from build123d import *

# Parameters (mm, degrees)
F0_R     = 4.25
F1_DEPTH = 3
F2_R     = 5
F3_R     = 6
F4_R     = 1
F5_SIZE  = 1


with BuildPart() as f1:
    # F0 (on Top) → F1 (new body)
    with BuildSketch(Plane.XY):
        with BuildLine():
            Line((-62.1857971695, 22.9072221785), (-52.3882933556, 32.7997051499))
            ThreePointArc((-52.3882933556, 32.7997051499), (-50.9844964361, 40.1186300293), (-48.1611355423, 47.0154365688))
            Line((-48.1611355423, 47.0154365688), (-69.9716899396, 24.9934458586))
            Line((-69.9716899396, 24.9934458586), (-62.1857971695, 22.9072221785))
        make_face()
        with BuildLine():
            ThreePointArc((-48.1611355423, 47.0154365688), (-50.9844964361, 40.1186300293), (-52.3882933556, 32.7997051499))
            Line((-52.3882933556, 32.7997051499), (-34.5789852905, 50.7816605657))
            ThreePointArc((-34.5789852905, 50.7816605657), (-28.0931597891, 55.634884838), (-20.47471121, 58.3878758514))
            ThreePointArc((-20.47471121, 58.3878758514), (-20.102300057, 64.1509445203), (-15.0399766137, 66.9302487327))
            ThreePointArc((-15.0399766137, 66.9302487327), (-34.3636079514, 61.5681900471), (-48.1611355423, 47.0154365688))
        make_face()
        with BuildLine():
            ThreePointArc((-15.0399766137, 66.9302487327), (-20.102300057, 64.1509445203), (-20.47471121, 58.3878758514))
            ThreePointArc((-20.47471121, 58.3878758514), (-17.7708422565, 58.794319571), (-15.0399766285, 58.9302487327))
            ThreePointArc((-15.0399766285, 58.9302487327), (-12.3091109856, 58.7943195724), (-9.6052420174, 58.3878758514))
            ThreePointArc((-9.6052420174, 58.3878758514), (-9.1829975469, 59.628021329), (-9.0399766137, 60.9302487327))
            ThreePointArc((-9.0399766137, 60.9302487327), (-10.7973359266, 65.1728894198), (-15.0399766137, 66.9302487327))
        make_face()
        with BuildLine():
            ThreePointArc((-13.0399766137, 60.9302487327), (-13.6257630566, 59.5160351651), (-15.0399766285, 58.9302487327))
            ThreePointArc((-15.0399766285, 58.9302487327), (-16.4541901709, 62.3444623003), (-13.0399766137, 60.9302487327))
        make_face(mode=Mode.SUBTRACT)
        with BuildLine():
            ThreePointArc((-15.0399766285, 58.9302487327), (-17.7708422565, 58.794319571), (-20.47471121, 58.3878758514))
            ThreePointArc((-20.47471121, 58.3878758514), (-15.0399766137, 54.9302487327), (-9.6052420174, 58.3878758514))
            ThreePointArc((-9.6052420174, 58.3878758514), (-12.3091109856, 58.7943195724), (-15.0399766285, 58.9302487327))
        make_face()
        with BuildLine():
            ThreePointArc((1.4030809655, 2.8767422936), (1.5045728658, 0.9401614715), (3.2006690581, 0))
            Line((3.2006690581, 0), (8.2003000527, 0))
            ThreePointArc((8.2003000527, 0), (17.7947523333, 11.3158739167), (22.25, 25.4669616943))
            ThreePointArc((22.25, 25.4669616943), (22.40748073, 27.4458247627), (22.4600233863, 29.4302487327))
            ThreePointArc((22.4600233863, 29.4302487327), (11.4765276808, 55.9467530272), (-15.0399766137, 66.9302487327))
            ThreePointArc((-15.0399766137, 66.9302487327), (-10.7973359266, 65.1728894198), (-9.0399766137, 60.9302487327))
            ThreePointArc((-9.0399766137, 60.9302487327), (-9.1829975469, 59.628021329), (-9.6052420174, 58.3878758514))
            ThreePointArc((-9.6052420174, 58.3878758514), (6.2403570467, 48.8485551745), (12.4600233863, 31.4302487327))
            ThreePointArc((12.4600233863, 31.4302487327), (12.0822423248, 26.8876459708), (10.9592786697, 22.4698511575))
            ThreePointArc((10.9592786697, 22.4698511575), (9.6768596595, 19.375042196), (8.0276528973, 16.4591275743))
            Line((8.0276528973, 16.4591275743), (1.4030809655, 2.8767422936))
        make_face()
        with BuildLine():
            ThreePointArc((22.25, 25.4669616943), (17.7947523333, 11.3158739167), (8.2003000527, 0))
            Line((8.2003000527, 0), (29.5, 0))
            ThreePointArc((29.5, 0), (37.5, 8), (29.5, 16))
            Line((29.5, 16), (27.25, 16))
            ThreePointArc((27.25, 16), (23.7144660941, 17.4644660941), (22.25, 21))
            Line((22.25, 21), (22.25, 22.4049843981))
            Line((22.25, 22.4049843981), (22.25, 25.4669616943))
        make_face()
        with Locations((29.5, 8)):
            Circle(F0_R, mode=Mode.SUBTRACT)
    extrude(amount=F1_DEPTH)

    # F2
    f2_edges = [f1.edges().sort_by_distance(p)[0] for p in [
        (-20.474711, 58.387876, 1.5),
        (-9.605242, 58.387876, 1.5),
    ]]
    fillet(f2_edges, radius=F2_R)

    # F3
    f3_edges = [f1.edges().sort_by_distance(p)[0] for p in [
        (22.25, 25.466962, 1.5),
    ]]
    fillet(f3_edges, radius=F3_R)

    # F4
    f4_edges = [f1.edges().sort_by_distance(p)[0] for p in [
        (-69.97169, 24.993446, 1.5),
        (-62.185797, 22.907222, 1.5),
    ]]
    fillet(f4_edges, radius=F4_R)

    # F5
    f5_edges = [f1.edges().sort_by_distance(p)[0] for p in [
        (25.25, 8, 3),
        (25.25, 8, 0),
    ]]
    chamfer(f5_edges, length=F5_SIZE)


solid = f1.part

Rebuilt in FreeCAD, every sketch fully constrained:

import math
import FreeCAD as App
import Part
import Sketcher
from FreeCAD import Vector
Q = App.Units.Quantity


def edges_at(feature, points):
    """Names of the edges that pass closest to the given points."""
    edges = feature.Shape.Edges
    near = lambda p: min(range(len(edges)), key=lambda i: edges[i].distToShape(Part.Vertex(*p))[0])
    return sorted({f"Edge{near(p) + 1}" for p in points})

doc = App.newDocument("Part")
params = doc.addObject("Spreadsheet::Sheet", "Params")
for row, (alias, value) in enumerate([
    ("sketch1_radius", "6 mm"),
    ("sketch1_radius2", "2 mm"),
    ("sketch1_radius3", "8 mm"),
    ("sketch1_radius4", "5 mm"),
    ("sketch1_diameter", "8.5 mm"),
    ("pad1_length", "3 mm"),
    ("fillet_radius", "5 mm"),
    ("fillet2_radius", "6 mm"),
    ("fillet3_radius", "1 mm"),
    ("chamfer_size", "1 mm"),
], start=1):
    params.set(f"A{row}", alias)
    params.set(f"B{row}", "=" + value)
    params.setAlias(f"B{row}", alias)

body = doc.addObject("PartDesign::Body", "Body")

sketch1 = body.newObject("Sketcher::SketchObject", "Sketch")
sketch1.AttachmentSupport = (doc.getObject("XY_Plane"), [""])
sketch1.MapMode = "FlatFace"
sketch1.addGeometry(Part.LineSegment(Vector(-48.161136, 47.015437, 0), Vector(-69.97169, 24.993446, 0)), False)
sketch1.addGeometry(Part.LineSegment(Vector(-69.97169, 24.993446, 0), Vector(-62.185797, 22.907222, 0)), False)
sketch1.addGeometry(Part.LineSegment(Vector(-62.185797, 22.907222, 0), Vector(-52.388293, 32.799705, 0)), False)
sketch1.addGeometry(Part.LineSegment(Vector(-52.388293, 32.799705, 0), Vector(-34.578985, 50.781661, 0)), False)
sketch1.addGeometry(Part.ArcOfCircle(Part.Circle(Vector(-15.039977, 31.430249, 0), Vector(0, 0, 1), 27.5), math.radians(101.39821), math.radians(135.276377)), False)
sketch1.addGeometry(Part.ArcOfCircle(Part.Circle(Vector(-15.039977, 60.930249, 0), Vector(0, 0, 1), 6), math.radians(-154.929772), math.radians(-25.070228)), False)
sketch1.addGeometry(Part.ArcOfCircle(Part.Circle(Vector(-15.039977, 31.430249, 0), Vector(0, 0, 1), 27.5), math.radians(0), math.radians(78.60179)), False)
sketch1.addGeometry(Part.ArcOfCircle(Part.Circle(Vector(-15.039977, 31.430249, 0), Vector(0, 0, 1), 27.5), math.radians(-19.016028), math.radians(0)), False)
sketch1.addGeometry(Part.ArcOfCircle(Part.Circle(Vector(-15.039977, 31.430249, 0), Vector(0, 0, 1), 27.5), math.radians(-32.983972), math.radians(-19.016028)), False)
sketch1.addGeometry(Part.LineSegment(Vector(8.027653, 16.459128, 0), Vector(1.403081, 2.876742, 0)), False)
sketch1.addGeometry(Part.ArcOfCircle(Part.Circle(Vector(3.200669, 2, 0), Vector(0, 0, 1), 2), math.radians(154), math.radians(270)), False)
sketch1.addGeometry(Part.LineSegment(Vector(3.200669, 0, 0), Vector(29.5, 0, 0)), False)
sketch1.addGeometry(Part.ArcOfCircle(Part.Circle(Vector(29.5, 8, 0), Vector(0, 0, 1), 8), math.radians(-90), math.radians(90)), False)
sketch1.addGeometry(Part.LineSegment(Vector(29.5, 16, 0), Vector(27.25, 16, 0)), False)
sketch1.addGeometry(Part.ArcOfCircle(Part.Circle(Vector(27.25, 21, 0), Vector(0, 0, 1), 5), math.radians(180), math.radians(270)), False)
sketch1.addGeometry(Part.LineSegment(Vector(22.25, 21, 0), Vector(22.25, 25.466962, 0)), False)
sketch1.addGeometry(Part.ArcOfCircle(Part.Circle(Vector(-15.039977, 29.430249, 0), Vector(0, 0, 1), 37.5), math.radians(-6.066787), math.radians(0)), False)
sketch1.addGeometry(Part.ArcOfCircle(Part.Circle(Vector(-15.039977, 29.430249, 0), Vector(0, 0, 1), 37.5), math.radians(0), math.radians(90)), False)
sketch1.addGeometry(Part.ArcOfCircle(Part.Circle(Vector(-15.039977, 29.430249, 0), Vector(0, 0, 1), 37.5), math.radians(90), math.radians(152.034596)), False)
sketch1.addGeometry(Part.Circle(Vector(29.5, 8, 0), Vector(0, 0, 1), 4.25), False)
sketch1.addGeometry(Part.ArcOfCircle(Part.Circle(Vector(-15.039977, 60.930249, 0), Vector(0, 0, 1), 2), math.radians(-90), math.radians(0)), False)
sketch1.addGeometry(Part.ArcOfCircle(Part.Circle(Vector(-15.039977, 60.930249, 0), Vector(0, 0, 1), 2), math.radians(0), math.radians(270)), False)
sketch1.addConstraint(Sketcher.Constraint("Coincident", 0, 2, 1, 1))
sketch1.addConstraint(Sketcher.Constraint("Coincident", 1, 2, 2, 1))
sketch1.addConstraint(Sketcher.Constraint("Coincident", 2, 2, 3, 1))
sketch1.addConstraint(Sketcher.Constraint("Tangent", 3, 2, 4, 2))
sketch1.addConstraint(Sketcher.Constraint("Coincident", 4, 1, 5, 1))
sketch1.addConstraint(Sketcher.Constraint("Coincident", 5, 2, 6, 2))
sketch1.addConstraint(Sketcher.Constraint("Tangent", 6, 1, 7, 2))
sketch1.addConstraint(Sketcher.Constraint("Tangent", 7, 1, 8, 2))
sketch1.addConstraint(Sketcher.Constraint("Coincident", 8, 1, 9, 1))
sketch1.addConstraint(Sketcher.Constraint("Tangent", 9, 2, 10, 1))
sketch1.addConstraint(Sketcher.Constraint("Tangent", 10, 2, 11, 1))
sketch1.addConstraint(Sketcher.Constraint("Tangent", 11, 2, 12, 1))
sketch1.addConstraint(Sketcher.Constraint("Tangent", 12, 2, 13, 1))
sketch1.addConstraint(Sketcher.Constraint("Tangent", 13, 2, 14, 2))
sketch1.addConstraint(Sketcher.Constraint("Tangent", 14, 1, 15, 1))
sketch1.addConstraint(Sketcher.Constraint("Coincident", 15, 2, 16, 1))
sketch1.addConstraint(Sketcher.Constraint("Tangent", 16, 2, 17, 1))
sketch1.addConstraint(Sketcher.Constraint("Tangent", 17, 2, 18, 1))
sketch1.addConstraint(Sketcher.Constraint("Coincident", 18, 2, 0, 1))
sketch1.addConstraint(Sketcher.Constraint("Tangent", 20, 1, 21, 2))
sketch1.addConstraint(Sketcher.Constraint("Coincident", 21, 1, 20, 2))
sketch1.addConstraint(Sketcher.Constraint("Horizontal", 11))
sketch1.addConstraint(Sketcher.Constraint("Horizontal", 13))
sketch1.addConstraint(Sketcher.Constraint("Vertical", 15))
sketch1.addConstraint(Sketcher.Constraint("Coincident", 6, 3, 4, 3))
sketch1.addConstraint(Sketcher.Constraint("Coincident", 8, 3, 4, 3))
sketch1.addConstraint(Sketcher.Constraint("Coincident", 18, 3, 16, 3))
sketch1.addConstraint(Sketcher.Constraint("Coincident", 19, 3, 12, 3))
sketch1.addConstraint(Sketcher.Constraint("Coincident", 20, 3, 5, 3))
sketch1.addConstraint(Sketcher.Constraint("Equal", 4, 6))
sketch1.addConstraint(Sketcher.Constraint("Equal", 10, 20))
sketch1.addConstraint(Sketcher.Constraint("PointOnObject", 10, 2, -1))
sketch1.addConstraint(Sketcher.Constraint("Parallel", 0, 2))
sketch1.addConstraint(Sketcher.Constraint("Parallel", 2, 3))
sketch1.addConstraint(Sketcher.Constraint("Horizontal", 4, 1, 5, 2))
sketch1.addConstraint(Sketcher.Constraint("Horizontal", 8, 3, 6, 1))
sketch1.addConstraint(Sketcher.Constraint("Horizontal", 18, 3, 16, 2))
sketch1.addConstraint(Sketcher.Constraint("Horizontal", 20, 3, 21, 1))
sketch1.addConstraint(Sketcher.Constraint("Vertical", 8, 3, 16, 3))
sketch1.addConstraint(Sketcher.Constraint("Vertical", 21, 3, 17, 2))
sketch1.addConstraint(Sketcher.Constraint("Vertical", 17, 2, 20, 1))
sketch1.addConstraint(Sketcher.Constraint("Radius", 5, Q("6 mm")))
sketch1.addConstraint(Sketcher.Constraint("Radius", 10, Q("2 mm")))
sketch1.addConstraint(Sketcher.Constraint("Radius", 12, Q("8 mm")))
sketch1.addConstraint(Sketcher.Constraint("Radius", 14, Q("5 mm")))
sketch1.addConstraint(Sketcher.Constraint("Diameter", 19, Q("8.5 mm")))
sketch1.addConstraint(Sketcher.Constraint("Radius", 4, Q("27.5 mm")))
sketch1.addConstraint(Sketcher.Constraint("Radius", 16, Q("37.5 mm")))
sketch1.addConstraint(Sketcher.Constraint("Angle", 1, Q("-15 deg")))
sketch1.addConstraint(Sketcher.Constraint("Angle", 9, Q("-116 deg")))
sketch1.addConstraint(Sketcher.Constraint("DistanceY", 16, 3, 8, 3, Q("2 mm")))
sketch1.addConstraint(Sketcher.Constraint("DistanceY", 5, 3, 17, 2, Q("6 mm")))
sketch1.addConstraint(Sketcher.Constraint("DistanceX", 13, 2, 13, 1, Q("2.25 mm")))
sketch1.addConstraint(Sketcher.Constraint("DistanceX", -1, 1, 12, 3, Q("29.5 mm")))
sketch1.addConstraint(Sketcher.Constraint("DistanceX", 11, 1, 11, 2, Q("26.299331 mm")))
sketch1.addConstraint(Sketcher.Constraint("DistanceY", 15, 1, 15, 2, Q("4.466962 mm")))
sketch1.addConstraint(Sketcher.Constraint("Distance", 0, Q("30.99465 mm")))
sketch1.addConstraint(Sketcher.Constraint("Distance", 1, Q("8.060549 mm")))
sketch1.addConstraint(Sketcher.Constraint("Distance", 3, Q("25.30854 mm")))
sketch1.addConstraint(Sketcher.Constraint("Distance", 9, Q("15.111788 mm")))
sketch1.addConstraint(Sketcher.Constraint("DistanceX", 0, 2, -1, 1, Q("69.97169 mm")))
sketch1.addConstraint(Sketcher.Constraint("DistanceX", -1, 1, 7, 1, Q("10.959279 mm")))
sketch1.setExpression("Constraints[41]", "Params.sketch1_radius")
sketch1.setExpression("Constraints[42]", "Params.sketch1_radius2")
sketch1.setExpression("Constraints[43]", "Params.sketch1_radius3")
sketch1.setExpression("Constraints[44]", "Params.sketch1_radius4")
sketch1.setExpression("Constraints[45]", "Params.sketch1_diameter")
pad1 = body.newObject("PartDesign::Pad", "Pad")
pad1.Profile = sketch1
pad1.setExpression("Length", "Params.pad1_length")
doc.recompute()

fillet = body.newObject("PartDesign::Fillet", "Fillet")
fillet.Base = (pad1, edges_at(pad1, [(-20.475, 58.388, 1.5), (-9.605, 58.388, 1.5)]))
fillet.setExpression("Radius", "Params.fillet_radius")
doc.recompute()

fillet2 = body.newObject("PartDesign::Fillet", "Fillet001")
fillet2.Base = (fillet, edges_at(fillet, [(22.25, 25.467, 1.5)]))
fillet2.setExpression("Radius", "Params.fillet2_radius")
doc.recompute()

fillet3 = body.newObject("PartDesign::Fillet", "Fillet002")
fillet3.Base = (fillet2, edges_at(fillet2, [(-69.972, 24.993, 1.5), (-62.186, 22.907, 1.5)]))
fillet3.setExpression("Radius", "Params.fillet3_radius")
doc.recompute()

chamfer = body.newObject("PartDesign::Chamfer", "Chamfer")
chamfer.Base = (fillet3, edges_at(fillet3, [(25.25, 8, 3), (25.25, 8, 0)]))
chamfer.setExpression("Size", "Params.chamfer_size")

doc.recompute()
